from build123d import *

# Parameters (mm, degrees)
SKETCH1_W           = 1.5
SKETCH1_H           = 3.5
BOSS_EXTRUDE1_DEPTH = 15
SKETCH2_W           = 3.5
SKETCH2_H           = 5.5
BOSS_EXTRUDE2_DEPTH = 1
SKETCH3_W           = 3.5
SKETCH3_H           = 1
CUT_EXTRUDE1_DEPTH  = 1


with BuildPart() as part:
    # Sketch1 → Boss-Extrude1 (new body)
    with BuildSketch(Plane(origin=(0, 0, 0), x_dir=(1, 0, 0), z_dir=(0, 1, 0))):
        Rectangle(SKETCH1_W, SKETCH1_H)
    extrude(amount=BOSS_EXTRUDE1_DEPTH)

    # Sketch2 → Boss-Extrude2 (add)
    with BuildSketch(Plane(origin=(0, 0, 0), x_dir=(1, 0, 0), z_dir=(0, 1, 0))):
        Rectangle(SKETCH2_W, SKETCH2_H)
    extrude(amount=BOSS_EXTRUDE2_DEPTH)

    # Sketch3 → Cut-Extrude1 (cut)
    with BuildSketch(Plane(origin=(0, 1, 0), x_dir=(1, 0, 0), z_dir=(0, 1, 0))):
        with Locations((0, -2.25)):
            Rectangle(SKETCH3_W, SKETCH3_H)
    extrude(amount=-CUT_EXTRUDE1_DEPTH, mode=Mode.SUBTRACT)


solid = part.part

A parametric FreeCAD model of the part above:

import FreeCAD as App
import Part
import Sketcher
from FreeCAD import Vector

doc = App.newDocument("Part")
params = doc.addObject("Spreadsheet::Sheet", "Params")
for row, (alias, value) in enumerate([
    ("sketch1_width", "1.5 mm"),
    ("sketch1_height", "3.5 mm"),
    ("pad1_length", "15 mm"),
    ("sketch2_width", "3.5 mm"),
    ("sketch2_height", "5.5 mm"),
    ("pad2_length", "1 mm"),
    ("sketch3_height", "1 mm"),
    ("sketch3_width", "3.5 mm"),
    ("pocket1_length", "1 mm"),
], start=1):
    params.set(f"A{row}", alias)
    params.set(f"B{row}", "=" + value)
    params.setAlias(f"B{row}", alias)

body = doc.addObject("PartDesign::Body", "Body")

sketch1 = body.newObject("Sketcher::SketchObject", "Sketch")
sketch1.AttachmentSupport = (doc.getObject("XZ_Plane"), [""])
sketch1.MapMode = "FlatFace"
sketch1.addGeometry([
    Part.LineSegment(Vector(-0.8, -1.8, 0), Vector(-0.8, 1.8, 0)),
    Part.LineSegment(Vector(-0.8, 1.8, 0), Vector(0.8, 1.8, 0)),
    Part.LineSegment(Vector(0.8, 1.8, 0), Vector(0.8, -1.8, 0)),
    Part.LineSegment(Vector(0.8, -1.8, 0), Vector(-0.8, -1.8, 0)),
], False)
sketch1.addConstraint([
    Sketcher.Constraint("Coincident", 0, 2, 1, 1),
    Sketcher.Constraint("Coincident", 1, 2, 2, 1),
    Sketcher.Constraint("Coincident", 2, 2, 3, 1),
    Sketcher.Constraint("Coincident", 3, 2, 0, 1),
    Sketcher.Constraint("Vertical", 0),
    Sketcher.Constraint("Horizontal", 1),
    Sketcher.Constraint("Vertical", 2),
    Sketcher.Constraint("Horizontal", 3),
    Sketcher.Constraint("Symmetric", 0, 2, 2, 2, -1, 1),
    Sketcher.Constraint("DistanceX", 1, 1, 1, 2, 1.5),
    Sketcher.Constraint("DistanceY", 0, 1, 0, 2, 3.5),
])
sketch1.setExpression("Constraints[9]", "Params.sketch1_width")
sketch1.setExpression("Constraints[10]", "Params.sketch1_height")
pad1 = body.newObject("PartDesign::Pad", "Pad")
pad1.Profile = sketch1
pad1.setExpression("Length", "Params.pad1_length")
pad1.Reversed = True

sketch2 = body.newObject("Sketcher::SketchObject", "Sketch001")
sketch2.AttachmentSupport = (doc.getObject("XZ_Plane"), [""])
sketch2.MapMode = "FlatFace"
sketch2.addGeometry([
    Part.LineSegment(Vector(-1.8, -2.8, 0), Vector(-1.8, 2.8, 0)),
    Part.LineSegment(Vector(-1.8, 2.8, 0), Vector(1.8, 2.8, 0)),
    Part.LineSegment(Vector(1.8, 2.8, 0), Vector(1.8, -2.8, 0)),
    Part.LineSegment(Vector(1.8, -2.8, 0), Vector(-1.8, -2.8, 0)),
], False)
sketch2.addConstraint([
    Sketcher.Constraint("Coincident", 0, 2, 1, 1),
    Sketcher.Constraint("Coincident", 1, 2, 2, 1),
    Sketcher.Constraint("Coincident", 2, 2, 3, 1),
    Sketcher.Constraint("Coincident", 3, 2, 0, 1),
    Sketcher.Constraint("Vertical", 0),
    Sketcher.Constraint("Horizontal", 1),
    Sketcher.Constraint("Vertical", 2),
    Sketcher.Constraint("Horizontal", 3),
    Sketcher.Constraint("Symmetric", 0, 2, 2, 2, -1, 1),
    Sketcher.Constraint("DistanceX", 1, 1, 1, 2, 3.5),
    Sketcher.Constraint("DistanceY", 0, 1, 0, 2, 5.5),
])
sketch2.setExpression("Constraints[9]", "Params.sketch2_width")
sketch2.setExpression("Constraints[10]", "Params.sketch2_height")
pad2 = body.newObject("PartDesign::Pad", "Pad001")
pad2.Profile = sketch2
pad2.setExpression("Length", "Params.pad2_length")
pad2.Reversed = True

sketch3 = body.newObject("Sketcher::SketchObject", "Sketch002")
sketch3.AttachmentSupport = (doc.getObject("XZ_Plane"), [""])
sketch3.MapMode = "FlatFace"
sketch3.AttachmentOffset = App.Placement(Vector(0, 0, -1), App.Rotation())
sketch3.addGeometry([
    Part.LineSegment(Vector(-1.8, 1.8, 0), Vector(-1.8, 2.8, 0)),
    Part.LineSegment(Vector(-1.8, 2.8, 0), Vector(1.8, 2.8, 0)),
    Part.LineSegment(Vector(1.8, 2.8, 0), Vector(1.8, 1.8, 0)),
    Part.LineSegment(Vector(1.8, 1.8, 0), Vector(-1.8, 1.8, 0)),
], False)
sketch3.addConstraint([
    Sketcher.Constraint("Coincident", 0, 2, 1, 1),
    Sketcher.Constraint("Coincident", 1, 2, 2, 1),
    Sketcher.Constraint("Coincident", 2, 2, 3, 1),
    Sketcher.Constraint("Coincident", 3, 2, 0, 1),
    Sketcher.Constraint("Vertical", 0),
    Sketcher.Constraint("Horizontal", 1),
    Sketcher.Constraint("Vertical", 2),
    Sketcher.Constraint("Horizontal", 3),
    Sketcher.Constraint("DistanceY", 0, 1, 0, 2, 1.0),
    Sketcher.Constraint("DistanceX", 1, 1, 1, 2, 3.5),
    Sketcher.Constraint("DistanceX", 0, 2, -1, 1, 1.75),
    Sketcher.Constraint("DistanceY", -1, 1, 0, 2, 2.75),
])
sketch3.setExpression("Constraints[8]", "Params.sketch3_height")
sketch3.setExpression("Constraints[9]", "Params.sketch3_width")
pocket1 = body.newObject("PartDesign::Pocket", "Pocket")
pocket1.Profile = sketch3
pocket1.setExpression("Length", "Params.pocket1_length")
pocket1.Reversed = True

doc.recompute()
